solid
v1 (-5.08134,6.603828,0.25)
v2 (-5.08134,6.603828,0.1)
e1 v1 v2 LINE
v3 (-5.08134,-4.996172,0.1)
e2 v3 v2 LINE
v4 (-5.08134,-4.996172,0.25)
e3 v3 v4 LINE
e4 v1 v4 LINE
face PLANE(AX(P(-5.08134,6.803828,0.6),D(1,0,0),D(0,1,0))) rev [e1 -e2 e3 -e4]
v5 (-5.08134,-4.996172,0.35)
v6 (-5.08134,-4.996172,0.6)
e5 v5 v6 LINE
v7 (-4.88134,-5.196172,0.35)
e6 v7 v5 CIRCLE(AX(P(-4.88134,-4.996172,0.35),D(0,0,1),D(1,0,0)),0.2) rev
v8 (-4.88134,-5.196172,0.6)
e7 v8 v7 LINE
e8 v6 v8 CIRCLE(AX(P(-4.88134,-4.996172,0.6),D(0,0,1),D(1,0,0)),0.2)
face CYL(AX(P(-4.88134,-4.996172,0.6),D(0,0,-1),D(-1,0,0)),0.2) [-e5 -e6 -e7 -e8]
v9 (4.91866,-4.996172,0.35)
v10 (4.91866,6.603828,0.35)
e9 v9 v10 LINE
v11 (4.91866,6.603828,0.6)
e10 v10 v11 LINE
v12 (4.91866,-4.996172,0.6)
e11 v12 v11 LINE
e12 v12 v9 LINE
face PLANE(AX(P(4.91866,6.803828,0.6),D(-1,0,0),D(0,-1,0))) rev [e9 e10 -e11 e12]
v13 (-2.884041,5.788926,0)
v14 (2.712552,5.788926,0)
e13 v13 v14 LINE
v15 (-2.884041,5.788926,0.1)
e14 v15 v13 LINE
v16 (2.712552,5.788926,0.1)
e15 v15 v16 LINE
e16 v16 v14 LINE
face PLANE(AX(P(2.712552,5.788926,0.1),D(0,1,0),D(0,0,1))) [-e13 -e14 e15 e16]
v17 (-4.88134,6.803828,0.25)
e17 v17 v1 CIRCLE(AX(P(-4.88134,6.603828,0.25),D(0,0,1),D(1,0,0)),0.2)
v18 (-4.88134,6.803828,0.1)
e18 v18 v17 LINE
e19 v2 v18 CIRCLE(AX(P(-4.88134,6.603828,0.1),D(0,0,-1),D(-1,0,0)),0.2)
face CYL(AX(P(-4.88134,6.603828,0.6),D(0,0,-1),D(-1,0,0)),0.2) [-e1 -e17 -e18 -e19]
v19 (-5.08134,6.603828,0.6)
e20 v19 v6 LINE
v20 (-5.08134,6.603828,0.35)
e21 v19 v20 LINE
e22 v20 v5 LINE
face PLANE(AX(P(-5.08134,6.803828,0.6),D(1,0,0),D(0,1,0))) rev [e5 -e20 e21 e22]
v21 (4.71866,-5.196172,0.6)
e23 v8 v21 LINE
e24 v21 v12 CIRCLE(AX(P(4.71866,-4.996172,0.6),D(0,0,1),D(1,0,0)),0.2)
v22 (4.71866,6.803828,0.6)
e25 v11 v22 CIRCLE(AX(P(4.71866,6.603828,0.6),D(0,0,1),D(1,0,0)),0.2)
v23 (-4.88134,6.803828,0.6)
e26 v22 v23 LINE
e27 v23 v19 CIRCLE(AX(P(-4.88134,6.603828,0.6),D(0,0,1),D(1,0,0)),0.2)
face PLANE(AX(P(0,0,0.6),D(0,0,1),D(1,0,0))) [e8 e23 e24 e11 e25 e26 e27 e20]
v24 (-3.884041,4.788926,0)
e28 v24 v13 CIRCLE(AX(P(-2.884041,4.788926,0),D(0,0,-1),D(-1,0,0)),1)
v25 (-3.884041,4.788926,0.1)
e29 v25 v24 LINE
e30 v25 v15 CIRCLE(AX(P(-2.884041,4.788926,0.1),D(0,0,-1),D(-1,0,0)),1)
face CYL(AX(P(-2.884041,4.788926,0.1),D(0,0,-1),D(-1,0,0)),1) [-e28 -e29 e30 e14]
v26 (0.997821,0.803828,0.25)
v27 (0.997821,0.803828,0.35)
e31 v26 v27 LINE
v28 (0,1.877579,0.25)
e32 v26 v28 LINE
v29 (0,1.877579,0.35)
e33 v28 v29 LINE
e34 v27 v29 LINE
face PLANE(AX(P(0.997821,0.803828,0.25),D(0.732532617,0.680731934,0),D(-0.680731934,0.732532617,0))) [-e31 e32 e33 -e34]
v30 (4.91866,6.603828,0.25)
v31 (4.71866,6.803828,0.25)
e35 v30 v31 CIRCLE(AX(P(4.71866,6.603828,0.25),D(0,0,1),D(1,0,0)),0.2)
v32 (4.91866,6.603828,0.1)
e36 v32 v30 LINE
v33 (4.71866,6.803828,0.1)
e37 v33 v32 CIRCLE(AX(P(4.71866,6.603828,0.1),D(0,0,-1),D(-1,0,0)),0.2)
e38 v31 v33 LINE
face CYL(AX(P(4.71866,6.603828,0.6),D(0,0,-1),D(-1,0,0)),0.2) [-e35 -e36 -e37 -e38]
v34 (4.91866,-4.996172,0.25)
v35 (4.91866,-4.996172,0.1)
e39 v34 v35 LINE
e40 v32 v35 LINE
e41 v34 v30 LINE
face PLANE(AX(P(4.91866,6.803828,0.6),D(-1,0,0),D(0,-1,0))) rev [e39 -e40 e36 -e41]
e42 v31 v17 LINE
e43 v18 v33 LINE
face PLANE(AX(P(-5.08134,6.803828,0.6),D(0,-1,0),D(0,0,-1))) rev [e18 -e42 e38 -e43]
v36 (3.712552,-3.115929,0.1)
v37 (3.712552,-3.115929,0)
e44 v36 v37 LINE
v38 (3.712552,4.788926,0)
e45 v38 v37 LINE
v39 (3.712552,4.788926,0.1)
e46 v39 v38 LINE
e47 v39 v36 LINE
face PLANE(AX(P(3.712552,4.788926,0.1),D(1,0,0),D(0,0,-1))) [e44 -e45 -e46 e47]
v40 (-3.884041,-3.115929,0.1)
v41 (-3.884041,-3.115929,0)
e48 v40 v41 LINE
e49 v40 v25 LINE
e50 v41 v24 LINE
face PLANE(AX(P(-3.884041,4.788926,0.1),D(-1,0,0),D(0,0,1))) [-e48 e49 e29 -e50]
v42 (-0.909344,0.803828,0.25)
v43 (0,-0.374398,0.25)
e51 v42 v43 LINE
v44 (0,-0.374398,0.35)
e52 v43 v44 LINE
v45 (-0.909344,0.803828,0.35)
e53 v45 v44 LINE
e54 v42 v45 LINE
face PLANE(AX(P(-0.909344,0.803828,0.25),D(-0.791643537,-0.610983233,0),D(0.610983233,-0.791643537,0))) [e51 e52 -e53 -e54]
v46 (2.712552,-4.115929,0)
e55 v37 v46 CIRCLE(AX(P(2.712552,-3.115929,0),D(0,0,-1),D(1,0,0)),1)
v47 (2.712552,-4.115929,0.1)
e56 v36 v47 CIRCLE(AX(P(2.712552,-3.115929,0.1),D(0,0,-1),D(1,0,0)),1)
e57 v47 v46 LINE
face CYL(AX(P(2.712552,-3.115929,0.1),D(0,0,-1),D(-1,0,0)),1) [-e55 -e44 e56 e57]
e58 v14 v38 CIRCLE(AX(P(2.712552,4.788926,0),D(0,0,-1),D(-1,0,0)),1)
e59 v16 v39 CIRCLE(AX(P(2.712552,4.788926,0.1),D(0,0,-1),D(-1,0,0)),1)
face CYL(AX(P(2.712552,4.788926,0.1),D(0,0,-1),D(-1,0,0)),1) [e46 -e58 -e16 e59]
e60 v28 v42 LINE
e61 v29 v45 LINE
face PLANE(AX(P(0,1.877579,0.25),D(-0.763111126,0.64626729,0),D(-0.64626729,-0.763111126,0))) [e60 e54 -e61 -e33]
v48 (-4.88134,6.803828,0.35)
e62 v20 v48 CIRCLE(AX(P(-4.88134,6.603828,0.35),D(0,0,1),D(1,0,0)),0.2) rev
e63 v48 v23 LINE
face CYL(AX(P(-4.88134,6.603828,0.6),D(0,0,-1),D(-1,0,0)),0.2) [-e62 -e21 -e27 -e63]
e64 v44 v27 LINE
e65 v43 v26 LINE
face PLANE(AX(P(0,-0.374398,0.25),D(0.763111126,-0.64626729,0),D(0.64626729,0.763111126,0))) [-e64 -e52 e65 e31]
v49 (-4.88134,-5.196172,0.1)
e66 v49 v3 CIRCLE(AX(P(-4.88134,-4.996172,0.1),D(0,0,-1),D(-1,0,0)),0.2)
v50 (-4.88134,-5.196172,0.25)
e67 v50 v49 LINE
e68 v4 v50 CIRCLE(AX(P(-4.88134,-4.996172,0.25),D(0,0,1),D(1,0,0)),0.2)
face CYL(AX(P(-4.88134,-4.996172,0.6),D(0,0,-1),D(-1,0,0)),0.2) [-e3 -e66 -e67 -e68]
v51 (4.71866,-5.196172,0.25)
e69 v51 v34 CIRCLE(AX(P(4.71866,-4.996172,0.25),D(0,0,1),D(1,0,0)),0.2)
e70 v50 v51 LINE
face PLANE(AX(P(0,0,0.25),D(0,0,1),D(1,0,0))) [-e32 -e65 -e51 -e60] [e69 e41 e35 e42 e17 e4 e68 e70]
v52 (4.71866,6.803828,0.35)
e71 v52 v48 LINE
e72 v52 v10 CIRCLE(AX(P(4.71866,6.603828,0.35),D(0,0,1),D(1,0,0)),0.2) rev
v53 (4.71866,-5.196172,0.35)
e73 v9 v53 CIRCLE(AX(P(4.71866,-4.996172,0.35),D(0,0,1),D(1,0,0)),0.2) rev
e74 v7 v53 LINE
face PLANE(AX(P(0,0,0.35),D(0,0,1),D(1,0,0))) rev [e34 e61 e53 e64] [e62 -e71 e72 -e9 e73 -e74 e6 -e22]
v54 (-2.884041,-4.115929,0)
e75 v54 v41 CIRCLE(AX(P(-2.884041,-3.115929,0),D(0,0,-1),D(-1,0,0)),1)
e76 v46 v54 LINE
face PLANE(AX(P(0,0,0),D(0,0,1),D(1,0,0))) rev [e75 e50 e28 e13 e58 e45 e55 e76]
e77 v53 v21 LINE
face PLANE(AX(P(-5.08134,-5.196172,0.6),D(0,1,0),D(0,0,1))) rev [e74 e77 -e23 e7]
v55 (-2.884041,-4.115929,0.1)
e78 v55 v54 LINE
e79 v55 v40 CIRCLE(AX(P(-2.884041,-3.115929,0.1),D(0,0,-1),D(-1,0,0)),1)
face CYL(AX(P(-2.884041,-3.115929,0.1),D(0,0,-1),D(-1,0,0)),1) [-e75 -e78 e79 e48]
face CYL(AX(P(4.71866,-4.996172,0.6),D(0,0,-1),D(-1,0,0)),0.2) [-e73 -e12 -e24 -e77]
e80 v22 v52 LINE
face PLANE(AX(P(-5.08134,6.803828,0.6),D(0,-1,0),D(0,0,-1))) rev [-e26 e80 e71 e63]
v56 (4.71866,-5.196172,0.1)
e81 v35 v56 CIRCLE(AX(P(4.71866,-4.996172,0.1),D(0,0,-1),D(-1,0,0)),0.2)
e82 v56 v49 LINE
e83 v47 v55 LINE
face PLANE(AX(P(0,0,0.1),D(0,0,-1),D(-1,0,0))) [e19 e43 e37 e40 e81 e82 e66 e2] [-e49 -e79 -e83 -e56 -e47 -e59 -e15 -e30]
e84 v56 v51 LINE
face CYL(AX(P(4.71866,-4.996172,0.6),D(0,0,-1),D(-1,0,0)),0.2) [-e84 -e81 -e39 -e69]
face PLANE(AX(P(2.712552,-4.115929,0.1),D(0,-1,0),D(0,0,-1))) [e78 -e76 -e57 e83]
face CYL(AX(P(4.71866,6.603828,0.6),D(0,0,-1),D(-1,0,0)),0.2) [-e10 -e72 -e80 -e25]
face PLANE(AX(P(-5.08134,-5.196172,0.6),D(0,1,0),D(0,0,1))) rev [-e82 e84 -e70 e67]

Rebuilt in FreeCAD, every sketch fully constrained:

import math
import FreeCAD as App
import Part
import Sketcher
Q = App.Units.Quantity


def edges_at(feature, points):
    """Names of the edges that pass closest to the given points."""
    edges = feature.Shape.Edges
    near = lambda p: min(range(len(edges)), key=lambda i: edges[i].distToShape(Part.Vertex(*p))[0])
    return sorted({f"Edge{near(p) + 1}" for p in points})

doc = App.newDocument("Part")
body = doc.addObject("PartDesign::Body", "Body")

sketch1 = body.newObject("Sketcher::SketchObject", "Sketch")
sketch1.AttachmentSupport = (doc.getObject("XY_Plane"), [""])
sketch1.MapMode = "FlatFace"
sketch1.addGeometry(Part.LineSegment(App.Vector(-5, 7, 0), App.Vector(-5, -5, 0)), False)
sketch1.addGeometry(Part.LineSegment(App.Vector(-5, -5, 0), App.Vector(5, -5, 0)), False)
sketch1.addGeometry(Part.LineSegment(App.Vector(5, -5, 0), App.Vector(5, 7, 0)), False)
sketch1.addGeometry(Part.LineSegment(App.Vector(5, 7, 0), App.Vector(-5, 7, 0)), False)
sketch1.addConstraint(Sketcher.Constraint("Coincident", 0, 2, 1, 1))
sketch1.addConstraint(Sketcher.Constraint("Coincident", 1, 2, 2, 1))
sketch1.addConstraint(Sketcher.Constraint("Coincident", 2, 2, 3, 1))
sketch1.addConstraint(Sketcher.Constraint("Coincident", 3, 2, 0, 1))
sketch1.addConstraint(Sketcher.Constraint("Vertical", 0))
sketch1.addConstraint(Sketcher.Constraint("Horizontal", 1))
sketch1.addConstraint(Sketcher.Constraint("Vertical", 2))
sketch1.addConstraint(Sketcher.Constraint("Horizontal", 3))
sketch1.addConstraint(Sketcher.Constraint("DistanceX", 1, 1, 1, 2, Q("10 mm")))
sketch1.addConstraint(Sketcher.Constraint("DistanceY", 0, 2, 0, 1, Q("12 mm")))
sketch1.addConstraint(Sketcher.Constraint("DistanceX", 0, 2, -1, 1, Q("5.08134 mm")))
sketch1.addConstraint(Sketcher.Constraint("DistanceY", 0, 2, -1, 1, Q("5.196172 mm")))
pad1 = body.newObject("PartDesign::Pad", "Pad")
pad1.Profile = sketch1
pad1.Length = 0.6

sketch2 = body.newObject("Sketcher::SketchObject", "Sketch001")
sketch2.AttachmentSupport = (doc.getObject("XY_Plane"), [""])
sketch2.MapMode = "FlatFace"
sketch2.addGeometry(Part.LineSegment(App.Vector(4.9, 6.8, 0), App.Vector(4.9, -5.2, 0)), False)
sketch2.addGeometry(Part.LineSegment(App.Vector(4.9, -5.2, 0), App.Vector(-5.1, -5.2, 0)), False)
sketch2.addGeometry(Part.LineSegment(App.Vector(-5.1, -5.2, 0), App.Vector(-5.1, 6.8, 0)), False)
sketch2.addGeometry(Part.LineSegment(App.Vector(-5.1, 6.8, 0), App.Vector(4.9, 6.8, 0)), False)
sketch2.addGeometry(Part.ArcOfCircle(Part.Circle(App.Vector(2.7, 4.8, 0), App.Vector(0, 0, 1), 1), math.radians(0), math.radians(90)), False)
sketch2.addGeometry(Part.LineSegment(App.Vector(2.7, 5.8, 0), App.Vector(-2.9, 5.8, 0)), False)
sketch2.addGeometry(Part.ArcOfCircle(Part.Circle(App.Vector(-2.9, 4.8, 0), App.Vector(0, 0, 1), 1), math.radians(90), math.radians(180)), False)
sketch2.addGeometry(Part.LineSegment(App.Vector(-3.9, 4.8, 0), App.Vector(-3.9, -3.1, 0)), False)
sketch2.addGeometry(Part.ArcOfCircle(Part.Circle(App.Vector(-2.9, -3.1, 0), App.Vector(0, 0, 1), 1), math.radians(-180), math.radians(-90)), False)
sketch2.addGeometry(Part.LineSegment(App.Vector(-2.9, -4.1, 0), App.Vector(2.7, -4.1, 0)), False)
sketch2.addGeometry(Part.ArcOfCircle(Part.Circle(App.Vector(2.7, -3.1, 0), App.Vector(0, 0, 1), 1), math.radians(-90), math.radians(0)), False)
sketch2.addGeometry(Part.LineSegment(App.Vector(3.7, -3.1, 0), App.Vector(3.7, 4.8, 0)), False)
sketch2.addConstraint(Sketcher.Constraint("Coincident", 0, 2, 1, 1))
sketch2.addConstraint(Sketcher.Constraint("Coincident", 1, 2, 2, 1))
sketch2.addConstraint(Sketcher.Constraint("Coincident", 2, 2, 3, 1))
sketch2.addConstraint(Sketcher.Constraint("Coincident", 3, 2, 0, 1))
sketch2.addConstraint(Sketcher.Constraint("Tangent", 4, 2, 5, 1))
sketch2.addConstraint(Sketcher.Constraint("Tangent", 5, 2, 6, 1))
sketch2.addConstraint(Sketcher.Constraint("Tangent", 6, 2, 7, 1))
sketch2.addConstraint(Sketcher.Constraint("Tangent", 7, 2, 8, 1))
sketch2.addConstraint(Sketcher.Constraint("Tangent", 8, 2, 9, 1))
sketch2.addConstraint(Sketcher.Constraint("Tangent", 9, 2, 10, 1))
sketch2.addConstraint(Sketcher.Constraint("Tangent", 10, 2, 11, 1))
sketch2.addConstraint(Sketcher.Constraint("Tangent", 11, 2, 4, 1))
sketch2.addConstraint(Sketcher.Constraint("Vertical", 0))
sketch2.addConstraint(Sketcher.Constraint("Horizontal", 1))
sketch2.addConstraint(Sketcher.Constraint("Vertical", 2))
sketch2.addConstraint(Sketcher.Constraint("Horizontal", 3))
sketch2.addConstraint(Sketcher.Constraint("Horizontal", 5))
sketch2.addConstraint(Sketcher.Constraint("Vertical", 7))
sketch2.addConstraint(Sketcher.Constraint("Horizontal", 9))
sketch2.addConstraint(Sketcher.Constraint("Vertical", 11))
sketch2.addConstraint(Sketcher.Constraint("Equal", 4, 6))
sketch2.addConstraint(Sketcher.Constraint("Equal", 6, 8))
sketch2.addConstraint(Sketcher.Constraint("Equal", 8, 10))
sketch2.addConstraint(Sketcher.Constraint("Radius", 4, Q("1 mm")))
sketch2.addConstraint(Sketcher.Constraint("DistanceX", 1, 2, 1, 1, Q("10 mm")))
sketch2.addConstraint(Sketcher.Constraint("DistanceY", 0, 2, 0, 1, Q("12 mm")))
sketch2.addConstraint(Sketcher.Constraint("DistanceX", 8, 3, 0, 2, Q("7.802702 mm")))
sketch2.addConstraint(Sketcher.Constraint("DistanceY", 0, 2, 4, 3, Q("9.985099 mm")))
sketch2.addConstraint(Sketcher.Constraint("DistanceX", 5, 2, 5, 1, Q("5.596593 mm")))
sketch2.addConstraint(Sketcher.Constraint("DistanceY", 7, 2, 7, 1, Q("7.904855 mm")))
sketch2.addConstraint(Sketcher.Constraint("DistanceX", -1, 1, 4, 3, Q("2.712552 mm")))
sketch2.addConstraint(Sketcher.Constraint("DistanceY", 8, 3, -1, 1, Q("3.115929 mm")))
pocket1 = body.newObject("PartDesign::Pocket", "Pocket")
pocket1.Profile = sketch2
pocket1.Length = 0.1
pocket1.Reversed = True

sketch3 = body.newObject("Sketcher::SketchObject", "Sketch002")
sketch3.AttachmentSupport = (doc.getObject("XY_Plane"), [""])
sketch3.MapMode = "FlatFace"
sketch3.AttachmentOffset = App.Placement(App.Vector(0, 0, 0.3), App.Rotation())
sketch3.addGeometry(Part.LineSegment(App.Vector(-5.1, 6.8, 0), App.Vector(-5.1, -5.2, 0)), False)
sketch3.addGeometry(Part.LineSegment(App.Vector(-5.1, -5.2, 0), App.Vector(4.9, -5.2, 0)), False)
sketch3.addGeometry(Part.LineSegment(App.Vector(4.9, -5.2, 0), App.Vector(4.9, 6.8, 0)), False)
sketch3.addGeometry(Part.LineSegment(App.Vector(4.9, 6.8, 0), App.Vector(-5.1, 6.8, 0)), False)
sketch3.addGeometry(Part.LineSegment(App.Vector(-0.9, 0.8, 0), App.Vector(0, 1.9, 0)), False)
sketch3.addGeometry(Part.LineSegment(App.Vector(0, 1.9, 0), App.Vector(1, 0.8, 0)), False)
sketch3.addGeometry(Part.LineSegment(App.Vector(1, 0.8, 0), App.Vector(0, -0.4, 0)), False)
sketch3.addGeometry(Part.LineSegment(App.Vector(0, -0.4, 0), App.Vector(-0.9, 0.8, 0)), False)
sketch3.addConstraint(Sketcher.Constraint("Coincident", 0, 2, 1, 1))
sketch3.addConstraint(Sketcher.Constraint("Coincident", 1, 2, 2, 1))
sketch3.addConstraint(Sketcher.Constraint("Coincident", 2, 2, 3, 1))
sketch3.addConstraint(Sketcher.Constraint("Coincident", 3, 2, 0, 1))
sketch3.addConstraint(Sketcher.Constraint("Coincident", 4, 2, 5, 1))
sketch3.addConstraint(Sketcher.Constraint("Coincident", 5, 2, 6, 1))
sketch3.addConstraint(Sketcher.Constraint("Coincident", 6, 2, 7, 1))
sketch3.addConstraint(Sketcher.Constraint("Coincident", 7, 2, 4, 1))
sketch3.addConstraint(Sketcher.Constraint("Vertical", 0))
sketch3.addConstraint(Sketcher.Constraint("Horizontal", 1))
sketch3.addConstraint(Sketcher.Constraint("Vertical", 2))
sketch3.addConstraint(Sketcher.Constraint("Horizontal", 3))
sketch3.addConstraint(Sketcher.Constraint("PointOnObject", 4, 2, -2))
sketch3.addConstraint(Sketcher.Constraint("PointOnObject", 6, 2, -2))
sketch3.addConstraint(Sketcher.Constraint("Parallel", 4, 6))
sketch3.addConstraint(Sketcher.Constraint("Horizontal", 5, 2, 7, 2))
sketch3.addConstraint(Sketcher.Constraint("DistanceX", 1, 1, 1, 2, Q("10 mm")))
sketch3.addConstraint(Sketcher.Constraint("DistanceY", 0, 2, 0, 1, Q("12 mm")))
sketch3.addConstraint(Sketcher.Constraint("DistanceY", 1, 2, 5, 2, Q("6 mm")))
sketch3.addConstraint(Sketcher.Constraint("Distance", 4, Q("1.407071 mm")))
sketch3.addConstraint(Sketcher.Constraint("Distance", 7, Q("1.488328 mm")))
sketch3.addConstraint(Sketcher.Constraint("DistanceX", 0, 2, -1, 1, Q("5.08134 mm")))
sketch3.addConstraint(Sketcher.Constraint("DistanceY", -1, 1, 4, 2, Q("1.877579 mm")))
sketch3.addConstraint(Sketcher.Constraint("DistanceX", -1, 1, 5, 2, Q("0.997821 mm")))
pocket2 = body.newObject("PartDesign::Pocket", "Pocket001")
pocket2.Profile = sketch3
pocket2.Length = 0.1
pocket2.Midplane = True
doc.recompute()

fillet = body.newObject("PartDesign::Fillet", "Fillet")
fillet.Base = (pocket2, edges_at(pocket2, [
    (-5.081, 6.804, 0.175),
    (4.919, 6.804, 0.175),
    (4.919, -5.196, 0.175),
    (-5.081, -5.196, 0.175),
    (-5.081, 6.804, 0.475),
    (4.919, 6.804, 0.475),
    (4.919, -5.196, 0.475),
    (-5.081, -5.196, 0.475),
]))
fillet.Radius = 0.2

doc.recompute()
